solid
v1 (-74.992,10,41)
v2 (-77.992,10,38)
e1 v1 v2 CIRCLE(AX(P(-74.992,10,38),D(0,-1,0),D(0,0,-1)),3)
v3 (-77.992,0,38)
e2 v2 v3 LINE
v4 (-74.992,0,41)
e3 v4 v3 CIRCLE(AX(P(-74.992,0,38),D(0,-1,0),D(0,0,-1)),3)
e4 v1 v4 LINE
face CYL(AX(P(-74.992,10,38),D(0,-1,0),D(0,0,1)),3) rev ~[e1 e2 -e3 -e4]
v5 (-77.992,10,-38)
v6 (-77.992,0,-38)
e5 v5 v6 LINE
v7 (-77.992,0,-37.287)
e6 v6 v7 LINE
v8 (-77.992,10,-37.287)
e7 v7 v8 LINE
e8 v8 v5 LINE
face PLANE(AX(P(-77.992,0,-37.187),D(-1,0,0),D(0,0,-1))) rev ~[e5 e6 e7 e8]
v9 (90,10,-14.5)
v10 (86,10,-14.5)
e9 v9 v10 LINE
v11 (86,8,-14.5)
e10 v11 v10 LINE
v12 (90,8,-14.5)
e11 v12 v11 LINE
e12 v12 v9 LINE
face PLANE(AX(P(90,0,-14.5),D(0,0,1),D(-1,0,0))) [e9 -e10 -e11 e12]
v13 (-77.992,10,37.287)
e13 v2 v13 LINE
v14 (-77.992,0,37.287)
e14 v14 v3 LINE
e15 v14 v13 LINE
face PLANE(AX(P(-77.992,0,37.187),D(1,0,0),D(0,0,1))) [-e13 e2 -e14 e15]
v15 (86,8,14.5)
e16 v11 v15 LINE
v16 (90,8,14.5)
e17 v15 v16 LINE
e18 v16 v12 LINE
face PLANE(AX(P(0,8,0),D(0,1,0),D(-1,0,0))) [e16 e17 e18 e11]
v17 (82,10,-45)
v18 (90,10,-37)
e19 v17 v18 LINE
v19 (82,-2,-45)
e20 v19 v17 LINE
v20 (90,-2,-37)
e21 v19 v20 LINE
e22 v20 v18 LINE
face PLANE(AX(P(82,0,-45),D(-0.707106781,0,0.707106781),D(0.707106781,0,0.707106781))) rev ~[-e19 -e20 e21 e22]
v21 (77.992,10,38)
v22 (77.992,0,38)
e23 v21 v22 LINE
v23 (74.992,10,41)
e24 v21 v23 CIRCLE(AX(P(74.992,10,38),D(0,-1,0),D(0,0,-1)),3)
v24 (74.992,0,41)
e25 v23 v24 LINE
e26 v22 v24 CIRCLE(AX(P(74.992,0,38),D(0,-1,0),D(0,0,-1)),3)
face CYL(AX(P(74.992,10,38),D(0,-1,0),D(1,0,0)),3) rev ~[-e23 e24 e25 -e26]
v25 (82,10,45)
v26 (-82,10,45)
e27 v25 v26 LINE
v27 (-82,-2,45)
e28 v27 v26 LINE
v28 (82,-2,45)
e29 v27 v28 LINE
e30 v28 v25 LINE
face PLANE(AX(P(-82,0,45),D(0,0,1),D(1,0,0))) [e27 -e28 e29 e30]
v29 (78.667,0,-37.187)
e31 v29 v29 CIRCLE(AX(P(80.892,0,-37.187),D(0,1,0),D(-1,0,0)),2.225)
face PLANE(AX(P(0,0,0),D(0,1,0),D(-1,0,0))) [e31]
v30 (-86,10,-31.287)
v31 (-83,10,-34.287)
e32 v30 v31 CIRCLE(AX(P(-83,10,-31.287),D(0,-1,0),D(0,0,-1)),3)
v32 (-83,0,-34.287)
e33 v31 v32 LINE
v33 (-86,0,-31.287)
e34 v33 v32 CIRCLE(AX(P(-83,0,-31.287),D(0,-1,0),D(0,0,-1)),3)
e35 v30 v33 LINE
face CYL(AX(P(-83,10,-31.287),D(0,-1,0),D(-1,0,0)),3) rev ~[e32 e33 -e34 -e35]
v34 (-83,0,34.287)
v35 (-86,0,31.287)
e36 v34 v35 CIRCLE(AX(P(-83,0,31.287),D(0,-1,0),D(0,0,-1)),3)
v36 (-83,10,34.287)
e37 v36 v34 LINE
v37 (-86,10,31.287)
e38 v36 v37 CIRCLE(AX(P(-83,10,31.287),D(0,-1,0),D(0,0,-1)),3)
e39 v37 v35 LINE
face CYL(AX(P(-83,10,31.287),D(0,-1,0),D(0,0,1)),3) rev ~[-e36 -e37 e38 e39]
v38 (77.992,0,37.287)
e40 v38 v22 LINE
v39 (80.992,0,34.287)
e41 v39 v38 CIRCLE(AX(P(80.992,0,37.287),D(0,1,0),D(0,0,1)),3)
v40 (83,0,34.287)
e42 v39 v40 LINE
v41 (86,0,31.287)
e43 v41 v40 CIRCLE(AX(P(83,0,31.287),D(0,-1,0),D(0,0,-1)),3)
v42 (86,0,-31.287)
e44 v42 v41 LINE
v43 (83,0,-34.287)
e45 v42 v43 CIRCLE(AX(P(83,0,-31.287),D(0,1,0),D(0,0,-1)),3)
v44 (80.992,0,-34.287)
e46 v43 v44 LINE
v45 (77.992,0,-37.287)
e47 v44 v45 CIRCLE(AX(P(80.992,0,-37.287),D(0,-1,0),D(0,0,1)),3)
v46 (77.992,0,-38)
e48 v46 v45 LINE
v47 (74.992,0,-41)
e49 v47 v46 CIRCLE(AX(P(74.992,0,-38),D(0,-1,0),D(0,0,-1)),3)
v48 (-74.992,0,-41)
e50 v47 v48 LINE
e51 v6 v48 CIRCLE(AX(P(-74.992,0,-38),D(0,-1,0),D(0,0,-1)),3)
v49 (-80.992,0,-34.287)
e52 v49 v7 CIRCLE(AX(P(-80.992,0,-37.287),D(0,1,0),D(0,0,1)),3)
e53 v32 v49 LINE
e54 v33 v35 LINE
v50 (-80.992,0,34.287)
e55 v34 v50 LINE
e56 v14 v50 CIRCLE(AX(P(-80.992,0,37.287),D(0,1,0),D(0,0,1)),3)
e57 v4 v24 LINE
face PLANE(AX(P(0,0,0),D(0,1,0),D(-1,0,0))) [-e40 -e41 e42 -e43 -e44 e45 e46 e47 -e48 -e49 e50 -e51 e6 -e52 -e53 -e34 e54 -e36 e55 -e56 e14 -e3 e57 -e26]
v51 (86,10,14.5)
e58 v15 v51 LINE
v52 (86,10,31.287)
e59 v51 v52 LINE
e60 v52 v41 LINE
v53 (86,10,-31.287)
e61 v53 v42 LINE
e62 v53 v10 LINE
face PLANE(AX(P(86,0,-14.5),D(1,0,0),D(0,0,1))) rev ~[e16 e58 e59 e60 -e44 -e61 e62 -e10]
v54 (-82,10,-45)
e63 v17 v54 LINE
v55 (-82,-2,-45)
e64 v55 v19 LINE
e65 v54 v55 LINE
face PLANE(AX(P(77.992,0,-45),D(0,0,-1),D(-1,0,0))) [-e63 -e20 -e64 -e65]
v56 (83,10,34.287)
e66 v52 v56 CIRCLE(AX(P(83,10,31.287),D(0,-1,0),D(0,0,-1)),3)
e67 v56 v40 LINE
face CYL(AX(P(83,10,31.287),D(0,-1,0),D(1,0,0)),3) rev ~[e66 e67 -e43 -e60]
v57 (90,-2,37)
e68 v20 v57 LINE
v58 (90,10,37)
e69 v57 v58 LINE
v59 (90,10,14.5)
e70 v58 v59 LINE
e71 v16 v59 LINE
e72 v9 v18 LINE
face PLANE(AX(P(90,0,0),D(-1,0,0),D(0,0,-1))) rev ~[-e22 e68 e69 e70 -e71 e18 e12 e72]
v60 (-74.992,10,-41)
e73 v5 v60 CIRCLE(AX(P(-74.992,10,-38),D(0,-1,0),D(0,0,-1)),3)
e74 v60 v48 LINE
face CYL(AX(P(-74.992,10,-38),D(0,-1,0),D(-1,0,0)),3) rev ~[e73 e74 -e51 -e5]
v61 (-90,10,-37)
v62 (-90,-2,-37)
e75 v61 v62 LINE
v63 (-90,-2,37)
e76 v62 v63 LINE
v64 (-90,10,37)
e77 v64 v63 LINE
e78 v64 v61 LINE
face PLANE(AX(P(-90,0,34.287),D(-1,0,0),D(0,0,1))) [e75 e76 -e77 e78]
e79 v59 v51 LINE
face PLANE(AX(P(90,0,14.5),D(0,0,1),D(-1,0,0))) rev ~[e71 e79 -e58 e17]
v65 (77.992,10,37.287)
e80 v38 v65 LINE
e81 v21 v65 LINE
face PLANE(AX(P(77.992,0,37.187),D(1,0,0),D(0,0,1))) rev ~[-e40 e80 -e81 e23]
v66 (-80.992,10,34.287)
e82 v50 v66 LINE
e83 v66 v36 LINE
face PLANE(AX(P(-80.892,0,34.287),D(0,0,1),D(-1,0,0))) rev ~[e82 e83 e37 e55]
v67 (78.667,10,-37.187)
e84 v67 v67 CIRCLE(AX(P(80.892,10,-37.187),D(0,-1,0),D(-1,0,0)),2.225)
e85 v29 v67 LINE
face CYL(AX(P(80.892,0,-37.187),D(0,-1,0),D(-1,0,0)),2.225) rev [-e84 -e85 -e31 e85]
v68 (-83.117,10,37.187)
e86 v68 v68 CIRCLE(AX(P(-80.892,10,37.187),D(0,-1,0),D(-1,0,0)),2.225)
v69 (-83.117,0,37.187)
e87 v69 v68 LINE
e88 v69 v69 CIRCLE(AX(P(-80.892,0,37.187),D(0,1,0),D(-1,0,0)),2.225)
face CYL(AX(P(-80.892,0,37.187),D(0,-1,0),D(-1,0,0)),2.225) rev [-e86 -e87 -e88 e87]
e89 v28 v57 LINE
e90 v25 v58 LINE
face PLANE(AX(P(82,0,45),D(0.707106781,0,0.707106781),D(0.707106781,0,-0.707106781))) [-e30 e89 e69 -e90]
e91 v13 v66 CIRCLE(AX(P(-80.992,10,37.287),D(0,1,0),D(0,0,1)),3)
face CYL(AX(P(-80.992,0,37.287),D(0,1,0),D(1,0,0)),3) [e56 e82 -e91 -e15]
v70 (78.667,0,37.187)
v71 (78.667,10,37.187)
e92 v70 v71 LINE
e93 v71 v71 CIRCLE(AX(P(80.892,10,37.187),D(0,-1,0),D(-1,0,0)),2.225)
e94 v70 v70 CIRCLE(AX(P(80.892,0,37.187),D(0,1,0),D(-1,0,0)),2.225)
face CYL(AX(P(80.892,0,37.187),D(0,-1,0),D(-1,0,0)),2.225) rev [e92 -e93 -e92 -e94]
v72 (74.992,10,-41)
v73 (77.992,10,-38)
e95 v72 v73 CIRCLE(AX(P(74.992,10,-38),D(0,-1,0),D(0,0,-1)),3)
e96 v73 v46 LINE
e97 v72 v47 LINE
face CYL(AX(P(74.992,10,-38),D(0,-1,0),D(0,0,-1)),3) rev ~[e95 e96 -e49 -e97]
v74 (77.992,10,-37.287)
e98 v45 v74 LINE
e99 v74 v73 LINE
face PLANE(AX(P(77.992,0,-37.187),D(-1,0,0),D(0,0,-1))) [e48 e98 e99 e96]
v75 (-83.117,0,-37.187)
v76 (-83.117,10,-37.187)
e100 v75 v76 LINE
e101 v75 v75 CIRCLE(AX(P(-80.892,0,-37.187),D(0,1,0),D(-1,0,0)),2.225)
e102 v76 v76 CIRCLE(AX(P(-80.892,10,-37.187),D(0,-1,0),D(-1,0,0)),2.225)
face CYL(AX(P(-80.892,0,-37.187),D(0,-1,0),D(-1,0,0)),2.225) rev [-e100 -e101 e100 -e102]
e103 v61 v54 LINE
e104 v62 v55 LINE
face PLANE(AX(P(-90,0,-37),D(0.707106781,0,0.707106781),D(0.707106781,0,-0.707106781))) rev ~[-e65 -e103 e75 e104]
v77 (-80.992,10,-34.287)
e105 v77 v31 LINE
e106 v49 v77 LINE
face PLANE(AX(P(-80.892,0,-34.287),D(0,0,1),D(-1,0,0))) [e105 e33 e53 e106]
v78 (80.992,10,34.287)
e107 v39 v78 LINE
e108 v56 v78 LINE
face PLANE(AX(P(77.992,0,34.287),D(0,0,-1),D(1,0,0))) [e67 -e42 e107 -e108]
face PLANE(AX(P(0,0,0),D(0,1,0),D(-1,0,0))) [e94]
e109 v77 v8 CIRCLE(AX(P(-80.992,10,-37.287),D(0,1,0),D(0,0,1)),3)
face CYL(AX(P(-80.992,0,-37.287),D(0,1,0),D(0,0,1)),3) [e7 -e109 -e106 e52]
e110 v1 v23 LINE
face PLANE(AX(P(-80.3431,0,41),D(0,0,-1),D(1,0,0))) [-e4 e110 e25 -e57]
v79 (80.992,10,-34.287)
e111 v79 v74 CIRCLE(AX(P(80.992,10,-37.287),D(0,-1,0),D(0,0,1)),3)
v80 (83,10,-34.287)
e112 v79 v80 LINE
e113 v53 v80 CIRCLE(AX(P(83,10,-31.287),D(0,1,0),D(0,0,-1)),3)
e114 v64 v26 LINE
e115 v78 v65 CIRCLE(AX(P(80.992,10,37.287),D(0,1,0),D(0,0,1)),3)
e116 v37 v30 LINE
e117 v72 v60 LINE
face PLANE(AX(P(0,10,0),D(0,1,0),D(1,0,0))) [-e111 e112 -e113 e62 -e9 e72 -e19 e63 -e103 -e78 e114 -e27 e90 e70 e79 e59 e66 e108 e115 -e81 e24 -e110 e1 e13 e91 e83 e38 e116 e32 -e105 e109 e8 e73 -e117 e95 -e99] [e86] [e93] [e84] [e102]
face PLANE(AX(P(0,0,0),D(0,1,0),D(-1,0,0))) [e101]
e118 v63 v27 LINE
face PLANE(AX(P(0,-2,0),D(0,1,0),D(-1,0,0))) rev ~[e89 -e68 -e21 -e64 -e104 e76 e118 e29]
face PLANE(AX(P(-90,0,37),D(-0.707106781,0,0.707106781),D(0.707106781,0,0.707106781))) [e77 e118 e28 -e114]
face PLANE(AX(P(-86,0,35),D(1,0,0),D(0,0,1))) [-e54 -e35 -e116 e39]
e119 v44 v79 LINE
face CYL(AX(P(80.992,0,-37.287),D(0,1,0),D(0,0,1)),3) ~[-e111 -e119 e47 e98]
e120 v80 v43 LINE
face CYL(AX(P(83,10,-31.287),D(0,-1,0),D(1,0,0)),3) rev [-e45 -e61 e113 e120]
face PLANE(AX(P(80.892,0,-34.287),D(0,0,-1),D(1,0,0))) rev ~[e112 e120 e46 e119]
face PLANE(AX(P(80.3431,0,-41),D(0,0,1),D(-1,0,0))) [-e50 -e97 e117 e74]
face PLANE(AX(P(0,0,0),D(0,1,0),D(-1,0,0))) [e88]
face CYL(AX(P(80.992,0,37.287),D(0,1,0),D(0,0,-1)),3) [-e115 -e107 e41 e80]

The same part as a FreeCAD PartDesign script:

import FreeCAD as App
import Part
import Sketcher

V = App.Vector


def edges_at(feature, points):
    """Names of the edges that pass closest to the given points."""
    edges = feature.Shape.Edges
    near = lambda p: min(range(len(edges)), key=lambda i: edges[i].distToShape(Part.Vertex(*p))[0])
    return sorted({f"Edge{near(p) + 1}" for p in points})

doc = App.newDocument("Part")
params = doc.addObject("Spreadsheet::Sheet", "Params")
for row, (alias, value) in enumerate([
    ("pad1_length", "2 mm"),
    ("sketch2_width", "4 mm"),
    ("sketch2_length", "8 mm"),
    ("pad2_length", "10 mm"),
    ("sketch3_diameter", "4.45 mm"),
    ("pad3_length", "10 mm"),
    ("sketch4_width", "4 mm"),
    ("sketch4_height", "29 mm"),
    ("pad4_length", "8 mm"),
    ("fillet_radius", "3 mm"),
], start=1):
    params.set(f"A{row}", alias)
    params.set(f"B{row}", "=" + value)
    params.setAlias(f"B{row}", alias)

body = doc.addObject("PartDesign::Body", "Body")

# Sketch on XZ plane
sketch1 = body.newObject("Sketcher::SketchObject", "Sketch")
sketch1.AttachmentSupport = (doc.getObject("XZ_Plane"), [""])
sketch1.MapMode = "FlatFace"
sketch1.addGeometry([
    Part.LineSegment(V(-90, 37, 0), V(-82, 45, 0)),  # 0
    Part.LineSegment(V(-82, 45, 0), V(82, 45, 0)),  # 1
    Part.LineSegment(V(82, 45, 0), V(90, 37, 0)),  # 2
    Part.LineSegment(V(90, 37, 0), V(90, -37, 0)),  # 3
    Part.LineSegment(V(90, -37, 0), V(82, -45, 0)),  # 4
    Part.LineSegment(V(82, -45, 0), V(-82, -45, 0)),  # 5
    Part.LineSegment(V(-82, -45, 0), V(-90, -37, 0)),  # 6
    Part.LineSegment(V(-90, -37, 0), V(-90, 37, 0)),  # 7
], False)
sketch1.addConstraint([
    Sketcher.Constraint("Coincident", 0, 2, 1, 1),
    Sketcher.Constraint("Coincident", 1, 2, 2, 1),
    Sketcher.Constraint("Coincident", 2, 2, 3, 1),
    Sketcher.Constraint("Coincident", 3, 2, 4, 1),
    Sketcher.Constraint("Coincident", 4, 2, 5, 1),
    Sketcher.Constraint("Coincident", 5, 2, 6, 1),
    Sketcher.Constraint("Coincident", 6, 2, 7, 1),
    Sketcher.Constraint("Coincident", 7, 2, 0, 1),
    Sketcher.Constraint("Horizontal", 1),
    Sketcher.Constraint("Vertical", 3),
    Sketcher.Constraint("Horizontal", 5),
    Sketcher.Constraint("Vertical", 7),
    Sketcher.Constraint("Symmetric", 0, 2, 4, 2, -1, 1),
    Sketcher.Constraint("Symmetric", 2, 2, 6, 2, -1, 1),
    Sketcher.Constraint("Perpendicular", 0, 2),
    Sketcher.Constraint("Perpendicular", 2, 4),
    Sketcher.Constraint("Perpendicular", 4, 6),
    Sketcher.Constraint("Horizontal", 3, 2, 6, 2),
    Sketcher.Constraint("Vertical", 1, 2, 4, 2),
    Sketcher.Constraint("DistanceX", -1, 1, 2, 2, 90.0),
    Sketcher.Constraint("DistanceX", 1, 2, 2, 2, 8.0),
    Sketcher.Constraint("DistanceY", 4, 2, 1, 2, 90.0),
])
pad1 = body.newObject("PartDesign::Pad", "Pad")
pad1.Profile = sketch1
pad1.setExpression("Length", "Params.pad1_length")

# Sketch on XZ plane
sketch2 = body.newObject("Sketcher::SketchObject", "Sketch001")
sketch2.AttachmentSupport = (doc.getObject("XZ_Plane"), [""])
sketch2.MapMode = "FlatFace"
sketch2.addGeometry([
    Part.LineSegment(V(-90, 37, 0), V(-82, 45, 0)),  # 0
    Part.LineSegment(V(-82, 45, 0), V(82, 45, 0)),  # 1
    Part.LineSegment(V(82, 45, 0), V(90, 37, 0)),  # 2
    Part.LineSegment(V(90, 37, 0), V(90, 14.5, 0)),  # 3
    Part.LineSegment(V(90, 14.5, 0), V(86, 14.5, 0)),  # 4
    Part.LineSegment(V(86, 14.5, 0), V(86, 35.3, 0)),  # 5
    Part.LineSegment(V(86, 35.3, 0), V(80.3, 41, 0)),  # 6
    Part.LineSegment(V(80.3, 41, 0), V(-80.3, 41, 0)),  # 7
    Part.LineSegment(V(-80.3, 41, 0), V(-86, 35.3, 0)),  # 8
    Part.LineSegment(V(-86, 35.3, 0), V(-86, -35.3, 0)),  # 9
    Part.LineSegment(V(-86, -35.3, 0), V(-80.3, -41, 0)),  # 10
    Part.LineSegment(V(-80.3, -41, 0), V(80.3, -41, 0)),  # 11
    Part.LineSegment(V(80.3, -41, 0), V(86, -35.3, 0)),  # 12
    Part.LineSegment(V(86, -35.3, 0), V(86, -14.5, 0)),  # 13
    Part.LineSegment(V(86, -14.5, 0), V(90, -14.5, 0)),  # 14
    Part.LineSegment(V(90, -14.5, 0), V(90, -37, 0)),  # 15
    Part.LineSegment(V(90, -37, 0), V(82, -45, 0)),  # 16
    Part.LineSegment(V(82, -45, 0), V(-82, -45, 0)),  # 17
    Part.LineSegment(V(-82, -45, 0), V(-90, -37, 0)),  # 18
    Part.LineSegment(V(-90, -37, 0), V(-90, 37, 0)),  # 19
], False)
sketch2.addConstraint([
    Sketcher.Constraint("Coincident", 0, 2, 1, 1),
    Sketcher.Constraint("Coincident", 1, 2, 2, 1),
    Sketcher.Constraint("Coincident", 2, 2, 3, 1),
    Sketcher.Constraint("Coincident", 3, 2, 4, 1),
    Sketcher.Constraint("Coincident", 4, 2, 5, 1),
    Sketcher.Constraint("Coincident", 5, 2, 6, 1),
    Sketcher.Constraint("Coincident", 6, 2, 7, 1),
    Sketcher.Constraint("Coincident", 7, 2, 8, 1),
    Sketcher.Constraint("Coincident", 8, 2, 9, 1),
    Sketcher.Constraint("Coincident", 9, 2, 10, 1),
    Sketcher.Constraint("Coincident", 10, 2, 11, 1),
    Sketcher.Constraint("Coincident", 11, 2, 12, 1),
    Sketcher.Constraint("Coincident", 12, 2, 13, 1),
    Sketcher.Constraint("Coincident", 13, 2, 14, 1),
    Sketcher.Constraint("Coincident", 14, 2, 15, 1),
    Sketcher.Constraint("Coincident", 15, 2, 16, 1),
    Sketcher.Constraint("Coincident", 16, 2, 17, 1),
    Sketcher.Constraint("Coincident", 17, 2, 18, 1),
    Sketcher.Constraint("Coincident", 18, 2, 19, 1),
    Sketcher.Constraint("Coincident", 19, 2, 0, 1),
    Sketcher.Constraint("Horizontal", 1),
    Sketcher.Constraint("Vertical", 3),
    Sketcher.Constraint("Horizontal", 4),
    Sketcher.Constraint("Vertical", 5),
    Sketcher.Constraint("Horizontal", 7),
    Sketcher.Constraint("Vertical", 9),
    Sketcher.Constraint("Horizontal", 11),
    Sketcher.Constraint("Vertical", 13),
    Sketcher.Constraint("Horizontal", 14),
    Sketcher.Constraint("Vertical", 15),
    Sketcher.Constraint("Horizontal", 17),
    Sketcher.Constraint("Vertical", 19),
    Sketcher.Constraint("Symmetric", 5, 2, 9, 2, -1, 1),
    Sketcher.Constraint("Symmetric", 6, 2, 10, 2, -1, 1),
    Sketcher.Constraint("Symmetric", 8, 2, 12, 2, -1, 1),
    Sketcher.Constraint("Symmetric", 0, 2, 16, 2, -1, 1),
    Sketcher.Constraint("Symmetric", 2, 2, 18, 2, -1, 1),
    Sketcher.Constraint("Symmetric", 15, 2, 19, 2, -1, 1),
    Sketcher.Constraint("Perpendicular", 0, 2),
    Sketcher.Constraint("Parallel", 2, 6),
    Sketcher.Constraint("Perpendicular", 6, 8),
    Sketcher.Constraint("Perpendicular", 10, 12),
    Sketcher.Constraint("Perpendicular", 16, 18),
    Sketcher.Constraint("Horizontal", 5, 2, 8, 2),
    Sketcher.Constraint("Horizontal", 15, 2, 18, 2),
    Sketcher.Constraint("Vertical", 7, 2, 10, 2),
    Sketcher.Constraint("Equal", 5, 13),
    Sketcher.Constraint("DistanceX", 4, 2, 4, 1, 4.0),
    Sketcher.Constraint("Distance", 6, 8.0),
    Sketcher.Constraint("DistanceX", -1, 1, 2, 2, 90.0),
    Sketcher.Constraint("DistanceX", 1, 2, 2, 2, 8.0),
    Sketcher.Constraint("DistanceY", 6, 2, 1, 2, 4.0),
    Sketcher.Constraint("DistanceY", 17, 2, 0, 2, 90.0),
    Sketcher.Constraint("DistanceY", -1, 1, 3, 2, 14.5),
])
sketch2.setExpression("Constraints[47]", "Params.sketch2_width")
sketch2.setExpression("Constraints[48]", "Params.sketch2_length")
pad2 = body.newObject("PartDesign::Pad", "Pad001")
pad2.Profile = sketch2
pad2.setExpression("Length", "Params.pad2_length")
pad2.Reversed = True

# Sketch on XZ plane
sketch3 = body.newObject("Sketcher::SketchObject", "Sketch002")
sketch3.AttachmentSupport = (doc.getObject("XZ_Plane"), [""])
sketch3.MapMode = "FlatFace"
sketch3.addGeometry([
    Part.LineSegment(V(-90, 37, 0), V(-82, 45, 0)),  # 0
    Part.LineSegment(V(-82, 45, 0), V(-78, 45, 0)),  # 1
    Part.LineSegment(V(-78, 45, 0), V(-78, 34.3, 0)),  # 2
    Part.LineSegment(V(-78, 34.3, 0), V(-90, 34.3, 0)),  # 3
    Part.LineSegment(V(-90, 34.3, 0), V(-90, 37, 0)),  # 4
    Part.Circle(V(-80.9, 37.2, 0), V(0, 0, 1), 2.2),  # 5
    Part.LineSegment(V(78, 45, 0), V(82, 45, 0)),  # 6
    Part.LineSegment(V(82, 45, 0), V(90, 37, 0)),  # 7
    Part.LineSegment(V(90, 37, 0), V(90, 34.3, 0)),  # 8
    Part.LineSegment(V(90, 34.3, 0), V(78, 34.3, 0)),  # 9
    Part.LineSegment(V(78, 34.3, 0), V(78, 45, 0)),  # 10
    Part.Circle(V(80.9, 37.2, 0), V(0, 0, 1), 2.2),  # 11
    Part.LineSegment(V(-90, -37, 0), V(-90, -34.3, 0)),  # 12
    Part.LineSegment(V(-90, -34.3, 0), V(-78, -34.3, 0)),  # 13
    Part.LineSegment(V(-78, -34.3, 0), V(-78, -45, 0)),  # 14
    Part.LineSegment(V(-78, -45, 0), V(-82, -45, 0)),  # 15
    Part.LineSegment(V(-82, -45, 0), V(-90, -37, 0)),  # 16
    Part.Circle(V(-80.9, -37.2, 0), V(0, 0, 1), 2.2),  # 17
    Part.LineSegment(V(82, -45, 0), V(78, -45, 0)),  # 18
    Part.LineSegment(V(78, -45, 0), V(78, -34.3, 0)),  # 19
    Part.LineSegment(V(78, -34.3, 0), V(90, -34.3, 0)),  # 20
    Part.LineSegment(V(90, -34.3, 0), V(90, -37, 0)),  # 21
    Part.LineSegment(V(90, -37, 0), V(82, -45, 0)),  # 22
    Part.Circle(V(80.9, -37.2, 0), V(0, 0, 1), 2.2),  # 23
], False)
sketch3.addConstraint([
    Sketcher.Constraint("Coincident", 0, 2, 1, 1),
    Sketcher.Constraint("Coincident", 1, 2, 2, 1),
    Sketcher.Constraint("Coincident", 2, 2, 3, 1),
    Sketcher.Constraint("Coincident", 3, 2, 4, 1),
    Sketcher.Constraint("Coincident", 4, 2, 0, 1),
    Sketcher.Constraint("Coincident", 6, 2, 7, 1),
    Sketcher.Constraint("Coincident", 7, 2, 8, 1),
    Sketcher.Constraint("Coincident", 8, 2, 9, 1),
    Sketcher.Constraint("Coincident", 9, 2, 10, 1),
    Sketcher.Constraint("Coincident", 10, 2, 6, 1),
    Sketcher.Constraint("Coincident", 12, 2, 13, 1),
    Sketcher.Constraint("Coincident", 13, 2, 14, 1),
    Sketcher.Constraint("Coincident", 14, 2, 15, 1),
    Sketcher.Constraint("Coincident", 15, 2, 16, 1),
    Sketcher.Constraint("Coincident", 16, 2, 12, 1),
    Sketcher.Constraint("Coincident", 18, 2, 19, 1),
    Sketcher.Constraint("Coincident", 19, 2, 20, 1),
    Sketcher.Constraint("Coincident", 20, 2, 21, 1),
    Sketcher.Constraint("Coincident", 21, 2, 22, 1),
    Sketcher.Constraint("Coincident", 22, 2, 18, 1),
    Sketcher.Constraint("Horizontal", 1),
    Sketcher.Constraint("Vertical", 2),
    Sketcher.Constraint("Horizontal", 3),
    Sketcher.Constraint("Vertical", 4),
    Sketcher.Constraint("Horizontal", 6),
    Sketcher.Constraint("Vertical", 8),
    Sketcher.Constraint("Horizontal", 9),
    Sketcher.Constraint("Vertical", 10),
    Sketcher.Constraint("Vertical", 12),
    Sketcher.Constraint("Horizontal", 13),
    Sketcher.Constraint("Vertical", 14),
    Sketcher.Constraint("Horizontal", 15),
    Sketcher.Constraint("Horizontal", 18),
    Sketcher.Constraint("Vertical", 19),
    Sketcher.Constraint("Horizontal", 20),
    Sketcher.Constraint("Vertical", 21),
    Sketcher.Constraint("Equal", 5, 11),
    Sketcher.Constraint("Equal", 11, 17),
    Sketcher.Constraint("Equal", 17, 23),
    Sketcher.Constraint("Symmetric", 11, 3, 17, 3, -1, 1),
    Sketcher.Constraint("Symmetric", 5, 3, 23, 3, -1, 1),
    Sketcher.Constraint("Symmetric", 8, 2, 12, 2, -1, 1),
    Sketcher.Constraint("Symmetric", 10, 2, 14, 2, -1, 1),
    Sketcher.Constraint("Symmetric", 1, 2, 18, 2, -1, 1),
    Sketcher.Constraint("Symmetric", 3, 2, 20, 2, -1, 1),
    Sketcher.Constraint("Symmetric", 5, 3, 11, 3, -2),
    Sketcher.Constraint("Symmetric", 0, 2, 6, 2, -2),
    Sketcher.Constraint("Symmetric", 4, 2, 7, 2, -2),
    Sketcher.Constraint("Symmetric", 2, 2, 9, 2, -2),
    Sketcher.Constraint("Perpendicular", 0, 7),
    Sketcher.Constraint("Parallel", 7, 16),
    Sketcher.Constraint("Perpendicular", 16, 22),
    Sketcher.Constraint("Horizontal", 16, 2, 21, 2),
    Sketcher.Constraint("Vertical", 0, 2, 15, 2),
    Sketcher.Constraint("Diameter", 5, 4.45),
    Sketcher.Constraint("DistanceX", 3, 2, -1, 1, 90.0),
    Sketcher.Constraint("DistanceX", 3, 2, 0, 2, 8.0),
    Sketcher.Constraint("DistanceX", 5, 3, 1, 2, 2.9),
    Sketcher.Constraint("DistanceY", 2, 2, 5, 3, 2.9),
    Sketcher.Constraint("DistanceY", -1, 1, 0, 2, 45.0),
    Sketcher.Constraint("DistanceY", 5, 3, 0, 2, 7.813),
    Sketcher.Constraint("DistanceX", 3, 2, 5, 3, 9.108),
])
sketch3.setExpression("Constraints[54]", "Params.sketch3_diameter")
pad3 = body.newObject("PartDesign::Pad", "Pad002")
pad3.Profile = sketch3
pad3.setExpression("Length", "Params.pad3_length")
pad3.Reversed = True

# Sketch on XZ plane
sketch4 = body.newObject("Sketcher::SketchObject", "Sketch003")
sketch4.AttachmentSupport = (doc.getObject("XZ_Plane"), [""])
sketch4.MapMode = "FlatFace"
sketch4.addGeometry([
    Part.LineSegment(V(86, 14.5, 0), V(90, 14.5, 0)),
    Part.LineSegment(V(90, 14.5, 0), V(90, -14.5, 0)),
    Part.LineSegment(V(90, -14.5, 0), V(86, -14.5, 0)),
    Part.LineSegment(V(86, -14.5, 0), V(86, 14.5, 0)),
], False)
sketch4.addConstraint([
    Sketcher.Constraint("Coincident", 0, 2, 1, 1),
    Sketcher.Constraint("Coincident", 1, 2, 2, 1),
    Sketcher.Constraint("Coincident", 2, 2, 3, 1),
    Sketcher.Constraint("Coincident", 3, 2, 0, 1),
    Sketcher.Constraint("Horizontal", 0),
    Sketcher.Constraint("Vertical", 1),
    Sketcher.Constraint("Horizontal", 2),
    Sketcher.Constraint("Vertical", 3),
    Sketcher.Constraint("DistanceX", -1, 1, 0, 2, 90.0),
    Sketcher.Constraint("DistanceX", 0, 1, 0, 2, 4.0),
    Sketcher.Constraint("DistanceY", 1, 2, 1, 1, 29.0),
    Sketcher.Constraint("DistanceY", -1, 1, 0, 2, 14.5),
])
sketch4.setExpression("Constraints[9]", "Params.sketch4_width")
sketch4.setExpression("Constraints[10]", "Params.sketch4_height")
pad4 = body.newObject("PartDesign::Pad", "Pad003")
pad4.Profile = sketch4
pad4.setExpression("Length", "Params.pad4_length")
pad4.Reversed = True
doc.recompute()

fillet = body.newObject("PartDesign::Fillet", "Fillet")
fillet.Base = (pad4, edges_at(pad4, [
    (-77.992, 5, -41),
    (-77.992, 5, -34.287),
    (-86, 5, -34.287),
    (86, 5, -34.287),
    (77.992, 5, -34.287),
    (77.992, 5, -41),
    (86, 5, 34.287),
    (77.992, 5, 34.287),
    (77.992, 5, 41),
    (-77.992, 5, 34.287),
    (-86, 5, 34.287),
    (-77.992, 5, 41),
]))
fillet.setExpression("Radius", "Params.fillet_radius")

doc.recompute()
